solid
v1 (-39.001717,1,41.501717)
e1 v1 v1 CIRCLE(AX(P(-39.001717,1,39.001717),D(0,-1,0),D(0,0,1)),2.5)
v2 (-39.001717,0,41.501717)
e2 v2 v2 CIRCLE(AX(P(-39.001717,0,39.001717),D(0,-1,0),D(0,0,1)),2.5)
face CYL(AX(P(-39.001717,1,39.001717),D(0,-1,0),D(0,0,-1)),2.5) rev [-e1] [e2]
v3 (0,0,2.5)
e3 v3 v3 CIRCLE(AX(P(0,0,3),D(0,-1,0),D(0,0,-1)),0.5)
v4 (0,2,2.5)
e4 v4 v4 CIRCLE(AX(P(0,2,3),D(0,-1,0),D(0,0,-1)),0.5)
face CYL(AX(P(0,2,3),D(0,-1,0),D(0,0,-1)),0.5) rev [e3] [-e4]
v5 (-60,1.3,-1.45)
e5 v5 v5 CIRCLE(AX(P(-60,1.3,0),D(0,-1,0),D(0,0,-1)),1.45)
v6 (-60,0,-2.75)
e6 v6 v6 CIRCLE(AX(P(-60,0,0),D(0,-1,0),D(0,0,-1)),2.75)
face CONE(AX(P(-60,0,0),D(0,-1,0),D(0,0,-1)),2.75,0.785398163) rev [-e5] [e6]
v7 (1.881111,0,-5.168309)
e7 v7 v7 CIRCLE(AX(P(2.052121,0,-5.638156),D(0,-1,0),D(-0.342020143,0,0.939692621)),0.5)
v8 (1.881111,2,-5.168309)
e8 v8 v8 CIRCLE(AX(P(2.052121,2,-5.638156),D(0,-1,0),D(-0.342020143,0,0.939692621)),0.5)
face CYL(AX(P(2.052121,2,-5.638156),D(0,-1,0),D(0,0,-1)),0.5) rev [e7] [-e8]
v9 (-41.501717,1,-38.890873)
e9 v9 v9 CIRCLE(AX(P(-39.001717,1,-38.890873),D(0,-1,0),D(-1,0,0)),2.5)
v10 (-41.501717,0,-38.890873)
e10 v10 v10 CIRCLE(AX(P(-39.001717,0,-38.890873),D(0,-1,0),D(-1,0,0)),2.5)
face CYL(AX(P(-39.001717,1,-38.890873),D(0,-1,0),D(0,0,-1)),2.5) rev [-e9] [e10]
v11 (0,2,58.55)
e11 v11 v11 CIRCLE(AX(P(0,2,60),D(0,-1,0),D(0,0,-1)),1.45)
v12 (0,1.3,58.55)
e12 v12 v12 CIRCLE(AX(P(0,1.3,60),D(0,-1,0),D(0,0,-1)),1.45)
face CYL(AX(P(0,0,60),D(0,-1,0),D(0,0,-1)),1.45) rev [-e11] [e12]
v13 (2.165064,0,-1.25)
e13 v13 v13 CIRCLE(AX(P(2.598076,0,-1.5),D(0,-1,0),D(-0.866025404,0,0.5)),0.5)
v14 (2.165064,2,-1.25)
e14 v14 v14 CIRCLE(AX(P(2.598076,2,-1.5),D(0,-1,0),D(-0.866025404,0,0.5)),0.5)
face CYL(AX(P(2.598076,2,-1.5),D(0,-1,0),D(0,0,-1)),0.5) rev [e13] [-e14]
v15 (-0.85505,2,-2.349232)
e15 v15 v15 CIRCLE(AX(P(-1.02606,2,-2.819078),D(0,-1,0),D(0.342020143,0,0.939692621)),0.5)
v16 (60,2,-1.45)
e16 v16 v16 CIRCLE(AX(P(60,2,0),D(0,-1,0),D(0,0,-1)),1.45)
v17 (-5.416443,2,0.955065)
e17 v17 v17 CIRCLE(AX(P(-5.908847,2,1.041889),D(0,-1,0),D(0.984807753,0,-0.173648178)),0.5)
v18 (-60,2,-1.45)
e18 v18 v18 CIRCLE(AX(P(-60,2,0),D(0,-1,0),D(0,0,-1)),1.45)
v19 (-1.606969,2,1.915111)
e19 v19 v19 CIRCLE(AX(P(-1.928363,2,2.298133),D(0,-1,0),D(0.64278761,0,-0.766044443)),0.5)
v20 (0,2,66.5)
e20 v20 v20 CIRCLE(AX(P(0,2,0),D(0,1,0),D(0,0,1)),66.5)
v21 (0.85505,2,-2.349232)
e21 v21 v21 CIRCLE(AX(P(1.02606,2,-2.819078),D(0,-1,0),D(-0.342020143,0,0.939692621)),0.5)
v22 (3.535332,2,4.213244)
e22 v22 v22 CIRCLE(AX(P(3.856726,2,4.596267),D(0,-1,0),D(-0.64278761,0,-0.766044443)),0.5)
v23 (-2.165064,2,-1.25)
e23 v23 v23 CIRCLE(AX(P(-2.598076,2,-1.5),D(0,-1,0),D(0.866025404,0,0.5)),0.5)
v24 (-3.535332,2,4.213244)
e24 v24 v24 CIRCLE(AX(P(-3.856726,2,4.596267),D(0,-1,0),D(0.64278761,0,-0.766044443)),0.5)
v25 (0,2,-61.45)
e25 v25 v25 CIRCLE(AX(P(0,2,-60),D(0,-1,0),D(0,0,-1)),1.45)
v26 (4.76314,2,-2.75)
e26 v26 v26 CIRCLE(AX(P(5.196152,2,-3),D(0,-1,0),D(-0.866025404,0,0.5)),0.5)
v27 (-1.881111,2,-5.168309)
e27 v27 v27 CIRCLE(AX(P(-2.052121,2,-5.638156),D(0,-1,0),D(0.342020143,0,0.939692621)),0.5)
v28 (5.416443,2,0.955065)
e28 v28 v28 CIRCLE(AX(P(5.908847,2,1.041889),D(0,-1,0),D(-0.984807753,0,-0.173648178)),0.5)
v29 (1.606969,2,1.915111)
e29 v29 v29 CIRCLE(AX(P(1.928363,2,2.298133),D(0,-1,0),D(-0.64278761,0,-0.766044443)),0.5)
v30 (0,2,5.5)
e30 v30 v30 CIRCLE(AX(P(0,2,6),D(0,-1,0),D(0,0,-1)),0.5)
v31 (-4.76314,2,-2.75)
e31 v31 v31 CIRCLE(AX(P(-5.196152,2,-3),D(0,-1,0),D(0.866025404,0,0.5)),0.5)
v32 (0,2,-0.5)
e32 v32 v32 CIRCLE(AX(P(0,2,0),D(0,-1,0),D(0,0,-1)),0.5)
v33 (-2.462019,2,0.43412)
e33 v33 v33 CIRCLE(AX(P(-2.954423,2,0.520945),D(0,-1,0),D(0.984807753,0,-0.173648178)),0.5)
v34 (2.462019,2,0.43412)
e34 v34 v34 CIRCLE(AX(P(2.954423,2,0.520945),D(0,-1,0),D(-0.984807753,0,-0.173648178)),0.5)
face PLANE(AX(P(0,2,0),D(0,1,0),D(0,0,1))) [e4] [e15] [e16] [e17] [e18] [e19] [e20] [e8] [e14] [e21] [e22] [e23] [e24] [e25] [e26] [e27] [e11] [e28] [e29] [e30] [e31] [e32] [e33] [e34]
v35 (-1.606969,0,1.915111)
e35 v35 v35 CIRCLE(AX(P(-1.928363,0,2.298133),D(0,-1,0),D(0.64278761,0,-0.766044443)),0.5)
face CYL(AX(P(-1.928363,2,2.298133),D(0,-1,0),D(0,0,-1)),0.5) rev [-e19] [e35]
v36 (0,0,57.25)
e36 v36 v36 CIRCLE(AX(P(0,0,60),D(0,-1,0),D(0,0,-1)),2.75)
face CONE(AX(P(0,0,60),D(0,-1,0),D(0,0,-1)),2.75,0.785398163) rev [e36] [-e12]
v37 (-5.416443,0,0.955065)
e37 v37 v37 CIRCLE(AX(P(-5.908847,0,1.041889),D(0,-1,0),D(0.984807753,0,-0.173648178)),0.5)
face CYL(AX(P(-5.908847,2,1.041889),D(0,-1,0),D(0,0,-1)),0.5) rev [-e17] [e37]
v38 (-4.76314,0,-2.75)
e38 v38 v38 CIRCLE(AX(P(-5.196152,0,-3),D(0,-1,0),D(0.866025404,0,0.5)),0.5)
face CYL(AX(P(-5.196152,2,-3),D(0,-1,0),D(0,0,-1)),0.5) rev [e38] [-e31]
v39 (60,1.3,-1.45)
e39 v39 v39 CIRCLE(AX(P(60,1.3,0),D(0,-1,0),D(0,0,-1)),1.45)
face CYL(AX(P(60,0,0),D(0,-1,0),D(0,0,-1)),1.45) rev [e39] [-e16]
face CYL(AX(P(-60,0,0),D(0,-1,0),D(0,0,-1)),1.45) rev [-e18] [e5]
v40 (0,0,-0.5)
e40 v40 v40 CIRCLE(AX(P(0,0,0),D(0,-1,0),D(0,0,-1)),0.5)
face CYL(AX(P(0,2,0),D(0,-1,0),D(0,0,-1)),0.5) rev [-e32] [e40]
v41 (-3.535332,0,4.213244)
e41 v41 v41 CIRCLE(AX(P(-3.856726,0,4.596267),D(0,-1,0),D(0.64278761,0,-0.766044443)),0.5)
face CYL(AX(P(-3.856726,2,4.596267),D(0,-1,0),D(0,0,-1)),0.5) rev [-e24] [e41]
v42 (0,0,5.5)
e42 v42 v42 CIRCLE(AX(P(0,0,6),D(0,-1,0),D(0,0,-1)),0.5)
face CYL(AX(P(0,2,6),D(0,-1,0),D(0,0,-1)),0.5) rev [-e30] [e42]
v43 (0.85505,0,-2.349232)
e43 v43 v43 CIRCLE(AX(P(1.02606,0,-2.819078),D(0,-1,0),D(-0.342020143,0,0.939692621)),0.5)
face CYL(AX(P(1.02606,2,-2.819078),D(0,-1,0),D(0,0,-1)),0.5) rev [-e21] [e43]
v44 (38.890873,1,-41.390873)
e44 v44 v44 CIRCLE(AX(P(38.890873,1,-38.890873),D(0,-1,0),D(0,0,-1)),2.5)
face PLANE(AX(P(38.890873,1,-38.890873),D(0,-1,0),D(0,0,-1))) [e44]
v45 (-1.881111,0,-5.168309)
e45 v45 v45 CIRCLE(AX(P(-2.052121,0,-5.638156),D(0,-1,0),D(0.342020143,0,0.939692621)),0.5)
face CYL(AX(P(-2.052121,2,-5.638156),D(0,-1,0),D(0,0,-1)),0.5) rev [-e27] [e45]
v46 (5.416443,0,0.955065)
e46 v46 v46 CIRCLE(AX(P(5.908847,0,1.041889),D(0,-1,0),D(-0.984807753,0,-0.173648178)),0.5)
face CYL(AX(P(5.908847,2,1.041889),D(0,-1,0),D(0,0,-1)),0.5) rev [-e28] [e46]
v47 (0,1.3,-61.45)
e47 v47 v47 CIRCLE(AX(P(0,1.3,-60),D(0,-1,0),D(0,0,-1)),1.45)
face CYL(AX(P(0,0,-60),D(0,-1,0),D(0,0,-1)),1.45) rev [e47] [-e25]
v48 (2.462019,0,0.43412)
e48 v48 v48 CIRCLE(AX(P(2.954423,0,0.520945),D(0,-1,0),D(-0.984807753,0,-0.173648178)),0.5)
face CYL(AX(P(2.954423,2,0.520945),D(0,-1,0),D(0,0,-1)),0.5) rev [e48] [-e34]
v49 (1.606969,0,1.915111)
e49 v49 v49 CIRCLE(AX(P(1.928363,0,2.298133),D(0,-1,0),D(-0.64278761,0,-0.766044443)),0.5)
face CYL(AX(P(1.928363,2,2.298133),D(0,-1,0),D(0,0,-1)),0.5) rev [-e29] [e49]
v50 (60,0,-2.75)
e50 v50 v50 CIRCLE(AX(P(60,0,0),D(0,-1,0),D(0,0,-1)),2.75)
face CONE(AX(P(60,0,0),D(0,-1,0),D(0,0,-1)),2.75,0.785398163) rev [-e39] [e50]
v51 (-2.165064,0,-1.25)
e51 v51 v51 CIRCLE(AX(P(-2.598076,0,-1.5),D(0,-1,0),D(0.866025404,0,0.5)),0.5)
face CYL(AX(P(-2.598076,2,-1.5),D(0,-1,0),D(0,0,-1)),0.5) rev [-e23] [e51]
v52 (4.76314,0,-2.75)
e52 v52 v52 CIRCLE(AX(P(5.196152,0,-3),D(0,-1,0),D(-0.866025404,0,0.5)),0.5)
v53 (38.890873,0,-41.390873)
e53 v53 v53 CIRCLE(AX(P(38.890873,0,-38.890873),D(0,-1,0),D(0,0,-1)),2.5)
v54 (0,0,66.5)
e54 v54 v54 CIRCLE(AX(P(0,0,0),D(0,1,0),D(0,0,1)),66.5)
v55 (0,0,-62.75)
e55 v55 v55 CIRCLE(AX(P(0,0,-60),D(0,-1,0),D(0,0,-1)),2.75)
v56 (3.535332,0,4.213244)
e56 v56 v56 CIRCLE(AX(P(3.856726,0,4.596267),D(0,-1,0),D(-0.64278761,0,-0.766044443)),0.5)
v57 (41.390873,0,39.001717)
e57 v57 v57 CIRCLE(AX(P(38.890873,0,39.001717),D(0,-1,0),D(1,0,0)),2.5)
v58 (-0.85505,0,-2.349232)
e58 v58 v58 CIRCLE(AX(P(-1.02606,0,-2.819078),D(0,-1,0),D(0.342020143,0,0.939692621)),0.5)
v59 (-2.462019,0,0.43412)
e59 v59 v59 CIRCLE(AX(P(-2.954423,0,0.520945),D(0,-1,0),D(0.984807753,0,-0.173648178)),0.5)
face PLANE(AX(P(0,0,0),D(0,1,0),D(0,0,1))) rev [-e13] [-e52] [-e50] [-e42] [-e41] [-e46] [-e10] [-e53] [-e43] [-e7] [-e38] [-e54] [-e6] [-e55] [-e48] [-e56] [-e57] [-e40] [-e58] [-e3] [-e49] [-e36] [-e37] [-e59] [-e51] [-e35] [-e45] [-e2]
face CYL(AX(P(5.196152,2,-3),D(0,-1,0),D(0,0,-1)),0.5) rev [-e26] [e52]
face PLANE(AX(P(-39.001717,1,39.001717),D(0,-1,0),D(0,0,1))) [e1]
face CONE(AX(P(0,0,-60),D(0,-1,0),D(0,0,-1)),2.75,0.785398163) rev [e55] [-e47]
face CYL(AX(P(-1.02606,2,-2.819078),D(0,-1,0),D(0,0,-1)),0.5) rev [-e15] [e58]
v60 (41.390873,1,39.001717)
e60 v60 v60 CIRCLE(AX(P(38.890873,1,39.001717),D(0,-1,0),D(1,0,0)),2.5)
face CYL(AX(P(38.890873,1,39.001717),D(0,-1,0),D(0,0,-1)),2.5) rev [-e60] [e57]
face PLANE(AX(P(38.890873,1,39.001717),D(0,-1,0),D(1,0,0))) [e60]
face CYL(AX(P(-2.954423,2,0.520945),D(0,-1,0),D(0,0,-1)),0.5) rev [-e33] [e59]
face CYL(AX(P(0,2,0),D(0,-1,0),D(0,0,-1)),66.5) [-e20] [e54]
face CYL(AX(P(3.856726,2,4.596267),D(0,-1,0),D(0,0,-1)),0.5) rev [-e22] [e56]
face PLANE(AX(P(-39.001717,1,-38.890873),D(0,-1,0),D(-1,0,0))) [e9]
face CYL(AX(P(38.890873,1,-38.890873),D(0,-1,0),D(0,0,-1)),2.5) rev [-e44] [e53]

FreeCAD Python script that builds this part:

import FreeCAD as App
import Part
import Sketcher

V = App.Vector

doc = App.newDocument("Part")
params = doc.addObject("Spreadsheet::Sheet", "Params")
for row, (alias, value) in enumerate([
    ("sketch1_diameter", "133 mm"),
    ("pad1_length", "2 mm"),
    ("sketch2_diameter", "2.9 mm"),
    ("hole_diameter", "2.9 mm"),
    ("hole_depth", "2 mm"),
    ("hole_csink_diameter", "5.5 mm"),
    ("sketch3_diameter", "5 mm"),
    ("pocket1_length", "1 mm"),
    ("sketch4_diameter", "1 mm"),
], start=1):
    params.set(f"A{row}", alias)
    params.set(f"B{row}", "=" + value)
    params.setAlias(f"B{row}", alias)

body = doc.addObject("PartDesign::Body", "Body")

# Sketch on XZ plane
sketch1 = doc.addObject("Sketcher::SketchObject", "Sketch")
body.addObject(sketch1)
sketch1.AttachmentSupport = (doc.XZ_Plane, [""])
sketch1.MapMode = "FlatFace"
sketch1.addGeometry(Part.Circle(V(0, 0, 0), V(0, 0, 1), 66.5), False)
sketch1.addConstraint([
    Sketcher.Constraint("Coincident", 0, 3, -1, 1),
    Sketcher.Constraint("Diameter", 0, 133.0),
])
sketch1.setExpression("Constraints[1]", "Params.sketch1_diameter")
pad1 = doc.addObject("PartDesign::Pad", "Pad")
body.addObject(pad1)
pad1.Profile = sketch1
pad1.setExpression("Length", "Params.pad1_length")
pad1.Reversed = True

# Sketch on XZ plane
sketch2 = doc.addObject("Sketcher::SketchObject", "Sketch001")
body.addObject(sketch2)
sketch2.AttachmentSupport = (doc.XZ_Plane, [""])
sketch2.MapMode = "FlatFace"
sketch2.addGeometry([
    Part.Circle(V(60, 0, 0), V(0, 0, 1), 1.45),
    Part.Circle(V(0, -60, 0), V(0, 0, 1), 1.45),
    Part.Circle(V(-60, 0, 0), V(0, 0, 1), 1.45),
    Part.Circle(V(0, 60, 0), V(0, 0, 1), 1.45),
], False)
sketch2.addConstraint([
    Sketcher.Constraint("Equal", 0, 1),
    Sketcher.Constraint("Equal", 1, 2),
    Sketcher.Constraint("Equal", 2, 3),
    Sketcher.Constraint("Symmetric", 0, 3, 2, 3, -1, 1),
    Sketcher.Constraint("Symmetric", 1, 3, 3, 3, -1, 1),
    Sketcher.Constraint("PointOnObject", 0, 3, -1),
    Sketcher.Constraint("PointOnObject", 1, 3, -2),
    Sketcher.Constraint("Diameter", 0, 2.9),
    Sketcher.Constraint("DistanceX", -1, 1, 0, 3, 60.0),
    Sketcher.Constraint("DistanceY", 1, 3, -1, 1, 60.0),
])
sketch2.setExpression("Constraints[7]", "Params.sketch2_diameter")
doc.recompute()
hole = doc.addObject("PartDesign::Hole", "Hole")
body.addObject(hole)
hole.Profile = sketch2
hole.ThreadType = "None"
hole.setExpression("Diameter", "Params.hole_diameter")
hole.DepthType = "Dimension"
hole.setExpression("Depth", "Params.hole_depth")
hole.DrillPoint = "Angled"
hole.DrillPointAngle = 118
hole.HoleCutType = "Countersink"
hole.setExpression("HoleCutDiameter", "Params.hole_csink_diameter")
hole.HoleCutCountersinkAngle = 90

# Sketch on XZ plane
sketch3 = doc.addObject("Sketcher::SketchObject", "Sketch002")
body.addObject(sketch3)
sketch3.AttachmentSupport = (doc.XZ_Plane, [""])
sketch3.MapMode = "FlatFace"
sketch3.addGeometry(Part.Circle(V(38.890873, -38.890873, 0), V(0, 0, 1), 2.5), False)
sketch3.addConstraint([
    Sketcher.Constraint("Diameter", 0, 5.0),
    Sketcher.Constraint("DistanceX", -1, 1, 0, 3, 38.890873),
    Sketcher.Constraint("DistanceY", 0, 3, -1, 1, 38.890873),
])
sketch3.setExpression("Constraints[0]", "Params.sketch3_diameter")
pocket1 = doc.addObject("PartDesign::Pocket", "Pocket")
body.addObject(pocket1)
pocket1.Profile = sketch3
pocket1.setExpression("Length", "Params.pocket1_length")
doc.recompute()

datumline = doc.addObject("PartDesign::Line", "DatumLine")
body.addObject(datumline)
datumline.Placement = App.Placement(V(-0.055422, 0, 0.055422), App.Rotation(V(0, 0, 1), V(0, 1, 0)))
polarpattern = doc.addObject("PartDesign::PolarPattern", "PolarPattern")
body.addObject(polarpattern)
polarpattern.Originals = [pocket1]
polarpattern.Axis = (datumline, [""])
polarpattern.Angle = 360
polarpattern.Occurrences = 4
body.Tip = polarpattern

# Sketch on XZ plane
sketch4 = doc.addObject("Sketcher::SketchObject", "Sketch003")
body.addObject(sketch4)
sketch4.AttachmentSupport = (doc.XZ_Plane, [""])
sketch4.MapMode = "FlatFace"
sketch4.addGeometry([
    Part.Circle(V(0, 0, 0), V(0, 0, 1), 0.5),
    Part.Circle(V(0, 3, 0), V(0, 0, 1), 0.5),
    Part.Circle(V(0, 6, 0), V(0, 0, 1), 0.5),
], False)
sketch4.addConstraint([
    Sketcher.Constraint("Coincident", 0, 3, -1, 1),
    Sketcher.Constraint("Equal", 0, 1),
    Sketcher.Constraint("Equal", 1, 2),
    Sketcher.Constraint("PointOnObject", 1, 3, -2),
    Sketcher.Constraint("PointOnObject", 2, 3, -2),
    Sketcher.Constraint("Diameter", 0, 1.0),
    Sketcher.Constraint("DistanceY", -1, 1, 1, 3, 3.0),
    Sketcher.Constraint("DistanceY", -1, 1, 2, 3, 6.0),
])
sketch4.setExpression("Constraints[5]", "Params.sketch4_diameter")
pocket2 = doc.addObject("PartDesign::Pocket", "Pocket001")
body.addObject(pocket2)
pocket2.Profile = sketch4
pocket2.Type = "ThroughAll"
doc.recompute()

polarpattern2 = doc.addObject("PartDesign::PolarPattern", "PolarPattern001")
body.addObject(polarpattern2)
polarpattern2.Originals = [pocket2]
polarpattern2.Axis = (doc.Y_Axis, [""])
polarpattern2.Angle = 360
polarpattern2.Occurrences = 9
body.Tip = polarpattern2

doc.recompute()
